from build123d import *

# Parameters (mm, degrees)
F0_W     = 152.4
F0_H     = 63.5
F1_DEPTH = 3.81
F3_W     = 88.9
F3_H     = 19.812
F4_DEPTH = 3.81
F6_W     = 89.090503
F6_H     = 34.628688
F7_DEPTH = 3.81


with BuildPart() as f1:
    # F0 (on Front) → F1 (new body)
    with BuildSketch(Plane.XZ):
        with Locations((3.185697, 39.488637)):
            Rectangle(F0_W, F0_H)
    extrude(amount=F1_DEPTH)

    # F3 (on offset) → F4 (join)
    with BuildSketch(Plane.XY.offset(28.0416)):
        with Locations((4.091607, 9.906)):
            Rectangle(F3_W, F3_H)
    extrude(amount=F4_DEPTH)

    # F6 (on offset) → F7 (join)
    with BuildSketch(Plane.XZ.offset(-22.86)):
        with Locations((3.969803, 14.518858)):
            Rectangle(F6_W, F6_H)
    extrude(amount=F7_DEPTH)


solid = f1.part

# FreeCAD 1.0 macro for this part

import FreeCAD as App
import Part
import Sketcher

V = App.Vector
Q = App.Units.Quantity

doc = App.newDocument("Part")
params = doc.addObject("Spreadsheet::Sheet", "Params")
for row, (alias, value) in enumerate([
    ("sketch1_width", "6 in"),
    ("sketch1_height", "2.5 in"),
    ("pad1_length", "0.15 in"),
    ("sketch2_width", "3.5 in"),
    ("sketch2_height", "0.78 in"),
    ("pad2_length", "0.15 in"),
    ("pad3_length", "0.15 in"),
], start=1):
    params.set(f"A{row}", alias)
    params.set(f"B{row}", "=" + value)
    params.setAlias(f"B{row}", alias)

body = doc.addObject("PartDesign::Body", "Body")

# Sketch on XZ plane
sketch1 = body.newObject("Sketcher::SketchObject", "Sketch")
sketch1.AttachmentSupport = (doc.getObject("XZ_Plane"), [""])
sketch1.MapMode = "FlatFace"
sketch1.addGeometry(Part.LineSegment(V(-73.014303, 71.238637, 0), V(-73.014303, 7.738637, 0)), False)
sketch1.addGeometry(Part.LineSegment(V(-73.014303, 7.738637, 0), V(79.385697, 7.738637, 0)), False)
sketch1.addGeometry(Part.LineSegment(V(79.385697, 7.738637, 0), V(79.385697, 71.238637, 0)), False)
sketch1.addGeometry(Part.LineSegment(V(79.385697, 71.238637, 0), V(-73.014303, 71.238637, 0)), False)
sketch1.addConstraint(Sketcher.Constraint("Coincident", 0, 2, 1, 1))
sketch1.addConstraint(Sketcher.Constraint("Coincident", 1, 2, 2, 1))
sketch1.addConstraint(Sketcher.Constraint("Coincident", 2, 2, 3, 1))
sketch1.addConstraint(Sketcher.Constraint("Coincident", 3, 2, 0, 1))
sketch1.addConstraint(Sketcher.Constraint("Vertical", 0))
sketch1.addConstraint(Sketcher.Constraint("Horizontal", 1))
sketch1.addConstraint(Sketcher.Constraint("Vertical", 2))
sketch1.addConstraint(Sketcher.Constraint("Horizontal", 3))
sketch1.addConstraint(Sketcher.Constraint("DistanceX", 1, 1, 1, 2, Q("6 in")))
sketch1.addConstraint(Sketcher.Constraint("DistanceY", 0, 2, 0, 1, Q("2.5 in")))
sketch1.addConstraint(Sketcher.Constraint("DistanceX", 0, 2, -1, 1, 73.014303))
sketch1.addConstraint(Sketcher.Constraint("DistanceY", -1, 1, 0, 2, 7.738637))
sketch1.setExpression("Constraints[8]", "Params.sketch1_width")
sketch1.setExpression("Constraints[9]", "Params.sketch1_height")
pad1 = body.newObject("PartDesign::Pad", "Pad")
pad1.Profile = sketch1
pad1.setExpression("Length", "Params.pad1_length")

# Sketch on XY plane
sketch2 = body.newObject("Sketcher::SketchObject", "Sketch001")
sketch2.AttachmentSupport = (doc.getObject("XY_Plane"), [""])
sketch2.MapMode = "FlatFace"
sketch2.AttachmentOffset = App.Placement(V(0, 0, 1.104 * 25.4), App.Rotation())
sketch2.addGeometry(Part.LineSegment(V(-40.358393, 19.812, 0), V(-40.358393, 0, 0)), False)
sketch2.addGeometry(Part.LineSegment(V(-40.358393, 0, 0), V(48.541607, 0, 0)), False)
sketch2.addGeometry(Part.LineSegment(V(48.541607, 0, 0), V(48.541607, 19.812, 0)), False)
sketch2.addGeometry(Part.LineSegment(V(48.541607, 19.812, 0), V(-40.358393, 19.812, 0)), False)
sketch2.addConstraint(Sketcher.Constraint("Coincident", 0, 2, 1, 1))
sketch2.addConstraint(Sketcher.Constraint("Coincident", 1, 2, 2, 1))
sketch2.addConstraint(Sketcher.Constraint("Coincident", 2, 2, 3, 1))
sketch2.addConstraint(Sketcher.Constraint("Coincident", 3, 2, 0, 1))
sketch2.addConstraint(Sketcher.Constraint("Vertical", 0))
sketch2.addConstraint(Sketcher.Constraint("Horizontal", 1))
sketch2.addConstraint(Sketcher.Constraint("Vertical", 2))
sketch2.addConstraint(Sketcher.Constraint("Horizontal", 3))
sketch2.addConstraint(Sketcher.Constraint("PointOnObject", 0, 2, -1))
sketch2.addConstraint(Sketcher.Constraint("DistanceX", 1, 1, 1, 2, Q("3.5 in")))
sketch2.addConstraint(Sketcher.Constraint("DistanceY", 0, 2, 0, 1, Q("0.78 in")))
sketch2.addConstraint(Sketcher.Constraint("DistanceX", 0, 2, -1, 1, 40.358393))
sketch2.setExpression("Constraints[9]", "Params.sketch2_width")
sketch2.setExpression("Constraints[10]", "Params.sketch2_height")
pad2 = body.newObject("PartDesign::Pad", "Pad001")
pad2.Profile = sketch2
pad2.setExpression("Length", "Params.pad2_length")

# Sketch on XZ plane
sketch3 = body.newObject("Sketcher::SketchObject", "Sketch002")
sketch3.AttachmentSupport = (doc.getObject("XZ_Plane"), [""])
sketch3.MapMode = "FlatFace"
sketch3.AttachmentOffset = App.Placement(V(0, 0, -0.9 * 25.4), App.Rotation())
sketch3.addGeometry(Part.LineSegment(V(-40.575449, 31.833202, 0), V(-40.575449, -2.795486, 0)), False)
sketch3.addGeometry(Part.LineSegment(V(-40.575449, -2.795486, 0), V(48.515054, -2.795486, 0)), False)
sketch3.addGeometry(Part.LineSegment(V(48.515054, -2.795486, 0), V(48.515054, 31.833202, 0)), False)
sketch3.addGeometry(Part.LineSegment(V(48.515054, 31.833202, 0), V(-40.575449, 31.833202, 0)), False)
sketch3.addConstraint(Sketcher.Constraint("Coincident", 0, 2, 1, 1))
sketch3.addConstraint(Sketcher.Constraint("Coincident", 1, 2, 2, 1))
sketch3.addConstraint(Sketcher.Constraint("Coincident", 2, 2, 3, 1))
sketch3.addConstraint(Sketcher.Constraint("Coincident", 3, 2, 0, 1))
sketch3.addConstraint(Sketcher.Constraint("Vertical", 0))
sketch3.addConstraint(Sketcher.Constraint("Horizontal", 1))
sketch3.addConstraint(Sketcher.Constraint("Vertical", 2))
sketch3.addConstraint(Sketcher.Constraint("Horizontal", 3))
sketch3.addConstraint(Sketcher.Constraint("DistanceX", 1, 1, 1, 2, Q("3.5075001 in")))
sketch3.addConstraint(Sketcher.Constraint("DistanceY", -1, 1, 2, 2, 31.833202))
sketch3.addConstraint(Sketcher.Constraint("DistanceY", 0, 2, 0, 1, 34.628688))
sketch3.addConstraint(Sketcher.Constraint("DistanceX", 0, 2, -1, 1, 40.575449))
pad3 = body.newObject("PartDesign::Pad", "Pad002")
pad3.Profile = sketch3
pad3.setExpression("Length", "Params.pad3_length")

doc.recompute()
